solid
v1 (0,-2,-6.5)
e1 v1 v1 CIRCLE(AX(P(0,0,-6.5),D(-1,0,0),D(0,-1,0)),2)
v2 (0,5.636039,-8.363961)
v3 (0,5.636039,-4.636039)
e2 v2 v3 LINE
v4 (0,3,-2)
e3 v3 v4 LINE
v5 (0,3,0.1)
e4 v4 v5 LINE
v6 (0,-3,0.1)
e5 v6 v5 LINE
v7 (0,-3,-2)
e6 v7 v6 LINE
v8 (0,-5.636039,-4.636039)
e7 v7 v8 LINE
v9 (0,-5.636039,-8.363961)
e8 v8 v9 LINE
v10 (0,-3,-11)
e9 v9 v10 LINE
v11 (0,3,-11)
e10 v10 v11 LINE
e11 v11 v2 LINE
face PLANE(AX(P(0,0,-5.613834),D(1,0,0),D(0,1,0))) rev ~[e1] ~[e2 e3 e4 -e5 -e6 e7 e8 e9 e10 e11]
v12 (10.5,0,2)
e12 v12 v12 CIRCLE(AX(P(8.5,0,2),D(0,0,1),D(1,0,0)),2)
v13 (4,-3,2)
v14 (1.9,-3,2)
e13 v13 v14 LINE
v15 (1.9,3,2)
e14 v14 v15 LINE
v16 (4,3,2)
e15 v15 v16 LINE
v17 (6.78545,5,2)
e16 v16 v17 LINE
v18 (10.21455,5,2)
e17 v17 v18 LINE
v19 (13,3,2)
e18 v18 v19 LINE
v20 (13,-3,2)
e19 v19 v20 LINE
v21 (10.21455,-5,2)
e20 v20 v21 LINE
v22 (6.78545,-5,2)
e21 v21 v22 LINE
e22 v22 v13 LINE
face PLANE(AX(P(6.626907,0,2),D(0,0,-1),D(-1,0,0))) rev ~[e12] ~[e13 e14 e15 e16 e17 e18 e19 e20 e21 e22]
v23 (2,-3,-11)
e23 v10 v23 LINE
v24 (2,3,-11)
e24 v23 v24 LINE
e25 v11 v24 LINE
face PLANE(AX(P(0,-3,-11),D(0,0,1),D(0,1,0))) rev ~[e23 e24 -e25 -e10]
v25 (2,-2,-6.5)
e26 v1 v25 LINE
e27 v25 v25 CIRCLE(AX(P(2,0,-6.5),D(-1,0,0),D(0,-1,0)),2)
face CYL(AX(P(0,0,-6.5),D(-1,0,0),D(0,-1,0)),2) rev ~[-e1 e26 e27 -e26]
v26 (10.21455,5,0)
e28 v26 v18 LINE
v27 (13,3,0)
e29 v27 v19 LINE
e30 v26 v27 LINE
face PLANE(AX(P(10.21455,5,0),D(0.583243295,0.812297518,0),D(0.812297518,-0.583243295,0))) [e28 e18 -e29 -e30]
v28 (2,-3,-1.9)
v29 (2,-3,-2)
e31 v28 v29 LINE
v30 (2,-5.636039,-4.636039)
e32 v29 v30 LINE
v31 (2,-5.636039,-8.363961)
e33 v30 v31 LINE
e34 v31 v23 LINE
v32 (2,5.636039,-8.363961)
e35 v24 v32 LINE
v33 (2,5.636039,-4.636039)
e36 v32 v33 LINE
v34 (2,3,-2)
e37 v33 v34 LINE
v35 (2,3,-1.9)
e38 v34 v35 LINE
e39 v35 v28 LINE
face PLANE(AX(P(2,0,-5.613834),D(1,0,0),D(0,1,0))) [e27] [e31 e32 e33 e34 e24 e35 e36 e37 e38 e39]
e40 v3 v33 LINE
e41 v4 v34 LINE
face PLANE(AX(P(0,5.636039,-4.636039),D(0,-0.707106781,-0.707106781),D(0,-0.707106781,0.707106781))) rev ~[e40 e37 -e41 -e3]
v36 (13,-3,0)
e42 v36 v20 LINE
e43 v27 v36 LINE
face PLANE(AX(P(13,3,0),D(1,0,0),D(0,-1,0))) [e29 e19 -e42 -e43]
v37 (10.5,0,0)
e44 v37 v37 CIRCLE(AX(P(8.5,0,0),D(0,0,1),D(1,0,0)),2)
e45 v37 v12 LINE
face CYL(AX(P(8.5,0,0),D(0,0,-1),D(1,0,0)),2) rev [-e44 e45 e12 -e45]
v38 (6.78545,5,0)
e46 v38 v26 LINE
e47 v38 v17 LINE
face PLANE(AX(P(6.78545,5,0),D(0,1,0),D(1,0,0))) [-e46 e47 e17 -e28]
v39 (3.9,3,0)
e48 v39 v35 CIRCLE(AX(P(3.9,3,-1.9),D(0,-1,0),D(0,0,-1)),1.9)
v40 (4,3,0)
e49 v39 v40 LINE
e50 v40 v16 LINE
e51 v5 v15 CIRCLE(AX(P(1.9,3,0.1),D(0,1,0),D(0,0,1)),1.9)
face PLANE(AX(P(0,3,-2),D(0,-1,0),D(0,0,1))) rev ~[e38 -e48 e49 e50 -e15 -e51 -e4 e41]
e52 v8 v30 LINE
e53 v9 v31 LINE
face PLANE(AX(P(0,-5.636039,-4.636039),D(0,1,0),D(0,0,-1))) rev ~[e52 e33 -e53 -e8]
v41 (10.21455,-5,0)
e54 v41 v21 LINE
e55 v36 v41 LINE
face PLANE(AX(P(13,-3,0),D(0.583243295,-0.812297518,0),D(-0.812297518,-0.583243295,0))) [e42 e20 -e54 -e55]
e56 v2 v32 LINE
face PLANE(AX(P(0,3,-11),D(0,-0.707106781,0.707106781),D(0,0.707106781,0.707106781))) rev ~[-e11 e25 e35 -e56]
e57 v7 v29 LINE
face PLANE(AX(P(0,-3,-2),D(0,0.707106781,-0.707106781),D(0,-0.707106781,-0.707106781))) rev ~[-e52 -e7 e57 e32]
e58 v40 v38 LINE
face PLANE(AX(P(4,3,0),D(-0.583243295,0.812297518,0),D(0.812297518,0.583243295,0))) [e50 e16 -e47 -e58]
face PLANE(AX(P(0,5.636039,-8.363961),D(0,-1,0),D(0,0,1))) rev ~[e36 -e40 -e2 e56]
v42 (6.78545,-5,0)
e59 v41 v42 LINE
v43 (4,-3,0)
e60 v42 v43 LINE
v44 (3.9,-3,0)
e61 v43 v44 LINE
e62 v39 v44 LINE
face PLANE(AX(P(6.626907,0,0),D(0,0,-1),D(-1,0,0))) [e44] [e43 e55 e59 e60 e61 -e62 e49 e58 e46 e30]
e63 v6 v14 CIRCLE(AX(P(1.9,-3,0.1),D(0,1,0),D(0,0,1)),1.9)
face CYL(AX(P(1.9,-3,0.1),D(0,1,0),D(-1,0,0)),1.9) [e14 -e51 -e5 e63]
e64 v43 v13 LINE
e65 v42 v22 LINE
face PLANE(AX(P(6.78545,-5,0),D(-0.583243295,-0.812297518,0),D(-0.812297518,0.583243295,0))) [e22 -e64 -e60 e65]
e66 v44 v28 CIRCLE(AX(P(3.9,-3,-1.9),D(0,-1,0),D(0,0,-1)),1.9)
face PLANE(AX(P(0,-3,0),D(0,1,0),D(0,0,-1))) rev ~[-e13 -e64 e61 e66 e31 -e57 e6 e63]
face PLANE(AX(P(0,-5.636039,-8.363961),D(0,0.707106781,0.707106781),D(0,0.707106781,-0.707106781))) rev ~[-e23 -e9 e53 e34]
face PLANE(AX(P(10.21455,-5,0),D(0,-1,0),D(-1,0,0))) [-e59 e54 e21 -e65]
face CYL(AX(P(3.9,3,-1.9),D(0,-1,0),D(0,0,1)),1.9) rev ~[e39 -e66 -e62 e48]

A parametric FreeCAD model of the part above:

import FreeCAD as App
import Part
import Sketcher
from FreeCAD import Vector
Q = App.Units.Quantity


def edges_at(feature, points):
    """Names of the edges that pass closest to the given points."""
    edges = feature.Shape.Edges
    near = lambda p: min(range(len(edges)), key=lambda i: edges[i].distToShape(Part.Vertex(*p))[0])
    return sorted({f"Edge{near(p) + 1}" for p in points})

doc = App.newDocument("Part")
body = doc.addObject("PartDesign::Body", "Body")

# Sketch on XY plane
sketch1 = body.newObject("Sketcher::SketchObject", "Sketch")
sketch1.AttachmentSupport = (doc.getObject("XY_Plane"), [""])
sketch1.MapMode = "FlatFace"
sketch1.addGeometry([
    Part.LineSegment(Vector(13, -3, 0), Vector(13, 3, 0)),  # 0
    Part.LineSegment(Vector(13, 3, 0), Vector(10.2, 5, 0)),  # 1
    Part.LineSegment(Vector(10.2, 5, 0), Vector(6.8, 5, 0)),  # 2
    Part.LineSegment(Vector(6.8, 5, 0), Vector(4, 3, 0)),  # 3
    Part.LineSegment(Vector(4, 3, 0), Vector(0, 3, 0)),  # 4
    Part.LineSegment(Vector(0, 3, 0), Vector(0, -3, 0)),  # 5
    Part.LineSegment(Vector(0, -3, 0), Vector(4, -3, 0)),  # 6
    Part.LineSegment(Vector(4, -3, 0), Vector(6.8, -5, 0)),  # 7
    Part.LineSegment(Vector(6.8, -5, 0), Vector(10.2, -5, 0)),  # 8
    Part.LineSegment(Vector(10.2, -5, 0), Vector(13, -3, 0)),  # 9
    Part.Circle(Vector(8.5, 0, 0), Vector(0, 0, 1), 2),  # 10
], False)
sketch1.addConstraint([
    Sketcher.Constraint("Coincident", 0, 2, 1, 1),
    Sketcher.Constraint("Coincident", 1, 2, 2, 1),
    Sketcher.Constraint("Coincident", 2, 2, 3, 1),
    Sketcher.Constraint("Coincident", 3, 2, 4, 1),
    Sketcher.Constraint("Coincident", 4, 2, 5, 1),
    Sketcher.Constraint("Coincident", 5, 2, 6, 1),
    Sketcher.Constraint("Coincident", 6, 2, 7, 1),
    Sketcher.Constraint("Coincident", 7, 2, 8, 1),
    Sketcher.Constraint("Coincident", 8, 2, 9, 1),
    Sketcher.Constraint("Coincident", 9, 2, 0, 1),
    Sketcher.Constraint("Vertical", 0),
    Sketcher.Constraint("Horizontal", 2),
    Sketcher.Constraint("Horizontal", 4),
    Sketcher.Constraint("Vertical", 5),
    Sketcher.Constraint("Horizontal", 6),
    Sketcher.Constraint("Horizontal", 8),
    Sketcher.Constraint("Symmetric", 4, 2, 5, 2, -1, 1),
    Sketcher.Constraint("Symmetric", 2, 2, 7, 2, -1),
    Sketcher.Constraint("PointOnObject", 10, 3, -1),
    Sketcher.Constraint("Parallel", 1, 7),
    Sketcher.Constraint("Parallel", 3, 9),
    Sketcher.Constraint("Horizontal", 0, 2, 3, 2),
    Sketcher.Constraint("Horizontal", 6, 2, 9, 2),
    Sketcher.Constraint("Vertical", 3, 2, 6, 2),
    Sketcher.Constraint("Diameter", 10, Q("4 mm")),
    Sketcher.Constraint("DistanceX", 4, 2, 4, 1, Q("4 mm")),
    Sketcher.Constraint("DistanceY", 0, 1, 0, 2, Q("6 mm")),
    Sketcher.Constraint("DistanceX", -1, 1, 0, 2, Q("13 mm")),
    Sketcher.Constraint("DistanceY", -1, 1, 1, 2, Q("5 mm")),
    Sketcher.Constraint("DistanceX", -1, 1, 10, 3, Q("8.5 mm")),
    Sketcher.Constraint("DistanceX", 2, 2, 2, 1, Q("3.4291 mm")),
])
pad1 = body.newObject("PartDesign::Pad", "Pad")
pad1.Profile = sketch1
pad1.Length = 2

# Sketch on YZ plane
sketch2 = body.newObject("Sketcher::SketchObject", "Sketch001")
sketch2.AttachmentSupport = (doc.getObject("YZ_Plane"), [""])
sketch2.MapMode = "FlatFace"
sketch2.addGeometry([
    Part.LineSegment(Vector(-3, 0, 0), Vector(3, 0, 0)),  # 0
    Part.LineSegment(Vector(3, 0, 0), Vector(3, -2, 0)),  # 1
    Part.LineSegment(Vector(3, -2, 0), Vector(5.6, -4.6, 0)),  # 2
    Part.LineSegment(Vector(5.6, -4.6, 0), Vector(5.6, -8.4, 0)),  # 3
    Part.LineSegment(Vector(5.6, -8.4, 0), Vector(3, -11, 0)),  # 4
    Part.LineSegment(Vector(3, -11, 0), Vector(-3, -11, 0)),  # 5
    Part.LineSegment(Vector(-3, -11, 0), Vector(-5.6, -8.4, 0)),  # 6
    Part.LineSegment(Vector(-5.6, -8.4, 0), Vector(-5.6, -4.6, 0)),  # 7
    Part.LineSegment(Vector(-5.6, -4.6, 0), Vector(-3, -2, 0)),  # 8
    Part.LineSegment(Vector(-3, -2, 0), Vector(-3, 0, 0)),  # 9
    Part.Circle(Vector(0, -6.5, 0), Vector(0, 0, 1), 2),  # 10
], False)
sketch2.addConstraint([
    Sketcher.Constraint("Coincident", 0, 2, 1, 1),
    Sketcher.Constraint("Coincident", 1, 2, 2, 1),
    Sketcher.Constraint("Coincident", 2, 2, 3, 1),
    Sketcher.Constraint("Coincident", 3, 2, 4, 1),
    Sketcher.Constraint("Coincident", 4, 2, 5, 1),
    Sketcher.Constraint("Coincident", 5, 2, 6, 1),
    Sketcher.Constraint("Coincident", 6, 2, 7, 1),
    Sketcher.Constraint("Coincident", 7, 2, 8, 1),
    Sketcher.Constraint("Coincident", 8, 2, 9, 1),
    Sketcher.Constraint("Coincident", 9, 2, 0, 1),
    Sketcher.Constraint("Horizontal", 0),
    Sketcher.Constraint("Vertical", 1),
    Sketcher.Constraint("Vertical", 3),
    Sketcher.Constraint("Horizontal", 5),
    Sketcher.Constraint("Vertical", 7),
    Sketcher.Constraint("Vertical", 9),
    Sketcher.Constraint("Symmetric", 0, 2, 9, 2, -1, 1),
    Sketcher.Constraint("Symmetric", 3, 2, 6, 2, -2),
    Sketcher.Constraint("PointOnObject", 10, 3, -2),
    Sketcher.Constraint("Perpendicular", 2, 4),
    Sketcher.Constraint("Perpendicular", 4, 6),
    Sketcher.Constraint("Perpendicular", 6, 8),
    Sketcher.Constraint("Horizontal", 2, 2, 7, 2),
    Sketcher.Constraint("Horizontal", 1, 2, 8, 2),
    Sketcher.Constraint("Vertical", 1, 2, 4, 2),
    Sketcher.Constraint("Diameter", 10, Q("4 mm")),
    Sketcher.Constraint("DistanceX", 0, 1, 0, 2, Q("6 mm")),
    Sketcher.Constraint("DistanceY", 1, 2, 1, 1, Q("2 mm")),
    Sketcher.Constraint("DistanceY", 4, 2, -1, 1, Q("11 mm")),
    Sketcher.Constraint("DistanceY", 10, 3, -1, 1, Q("6.5 mm")),
    Sketcher.Constraint("DistanceY", 3, 2, 3, 1, Q("3.727922 mm")),
])
pad2 = body.newObject("PartDesign::Pad", "Pad001")
pad2.Profile = sketch2
pad2.Length = 2
doc.recompute()

fillet = body.newObject("PartDesign::Fillet", "Fillet")
fillet.Base = (pad2, edges_at(pad2, [(2, 0, 0), (0, 0, 2)]))
fillet.Radius = 1.9

doc.recompute()
